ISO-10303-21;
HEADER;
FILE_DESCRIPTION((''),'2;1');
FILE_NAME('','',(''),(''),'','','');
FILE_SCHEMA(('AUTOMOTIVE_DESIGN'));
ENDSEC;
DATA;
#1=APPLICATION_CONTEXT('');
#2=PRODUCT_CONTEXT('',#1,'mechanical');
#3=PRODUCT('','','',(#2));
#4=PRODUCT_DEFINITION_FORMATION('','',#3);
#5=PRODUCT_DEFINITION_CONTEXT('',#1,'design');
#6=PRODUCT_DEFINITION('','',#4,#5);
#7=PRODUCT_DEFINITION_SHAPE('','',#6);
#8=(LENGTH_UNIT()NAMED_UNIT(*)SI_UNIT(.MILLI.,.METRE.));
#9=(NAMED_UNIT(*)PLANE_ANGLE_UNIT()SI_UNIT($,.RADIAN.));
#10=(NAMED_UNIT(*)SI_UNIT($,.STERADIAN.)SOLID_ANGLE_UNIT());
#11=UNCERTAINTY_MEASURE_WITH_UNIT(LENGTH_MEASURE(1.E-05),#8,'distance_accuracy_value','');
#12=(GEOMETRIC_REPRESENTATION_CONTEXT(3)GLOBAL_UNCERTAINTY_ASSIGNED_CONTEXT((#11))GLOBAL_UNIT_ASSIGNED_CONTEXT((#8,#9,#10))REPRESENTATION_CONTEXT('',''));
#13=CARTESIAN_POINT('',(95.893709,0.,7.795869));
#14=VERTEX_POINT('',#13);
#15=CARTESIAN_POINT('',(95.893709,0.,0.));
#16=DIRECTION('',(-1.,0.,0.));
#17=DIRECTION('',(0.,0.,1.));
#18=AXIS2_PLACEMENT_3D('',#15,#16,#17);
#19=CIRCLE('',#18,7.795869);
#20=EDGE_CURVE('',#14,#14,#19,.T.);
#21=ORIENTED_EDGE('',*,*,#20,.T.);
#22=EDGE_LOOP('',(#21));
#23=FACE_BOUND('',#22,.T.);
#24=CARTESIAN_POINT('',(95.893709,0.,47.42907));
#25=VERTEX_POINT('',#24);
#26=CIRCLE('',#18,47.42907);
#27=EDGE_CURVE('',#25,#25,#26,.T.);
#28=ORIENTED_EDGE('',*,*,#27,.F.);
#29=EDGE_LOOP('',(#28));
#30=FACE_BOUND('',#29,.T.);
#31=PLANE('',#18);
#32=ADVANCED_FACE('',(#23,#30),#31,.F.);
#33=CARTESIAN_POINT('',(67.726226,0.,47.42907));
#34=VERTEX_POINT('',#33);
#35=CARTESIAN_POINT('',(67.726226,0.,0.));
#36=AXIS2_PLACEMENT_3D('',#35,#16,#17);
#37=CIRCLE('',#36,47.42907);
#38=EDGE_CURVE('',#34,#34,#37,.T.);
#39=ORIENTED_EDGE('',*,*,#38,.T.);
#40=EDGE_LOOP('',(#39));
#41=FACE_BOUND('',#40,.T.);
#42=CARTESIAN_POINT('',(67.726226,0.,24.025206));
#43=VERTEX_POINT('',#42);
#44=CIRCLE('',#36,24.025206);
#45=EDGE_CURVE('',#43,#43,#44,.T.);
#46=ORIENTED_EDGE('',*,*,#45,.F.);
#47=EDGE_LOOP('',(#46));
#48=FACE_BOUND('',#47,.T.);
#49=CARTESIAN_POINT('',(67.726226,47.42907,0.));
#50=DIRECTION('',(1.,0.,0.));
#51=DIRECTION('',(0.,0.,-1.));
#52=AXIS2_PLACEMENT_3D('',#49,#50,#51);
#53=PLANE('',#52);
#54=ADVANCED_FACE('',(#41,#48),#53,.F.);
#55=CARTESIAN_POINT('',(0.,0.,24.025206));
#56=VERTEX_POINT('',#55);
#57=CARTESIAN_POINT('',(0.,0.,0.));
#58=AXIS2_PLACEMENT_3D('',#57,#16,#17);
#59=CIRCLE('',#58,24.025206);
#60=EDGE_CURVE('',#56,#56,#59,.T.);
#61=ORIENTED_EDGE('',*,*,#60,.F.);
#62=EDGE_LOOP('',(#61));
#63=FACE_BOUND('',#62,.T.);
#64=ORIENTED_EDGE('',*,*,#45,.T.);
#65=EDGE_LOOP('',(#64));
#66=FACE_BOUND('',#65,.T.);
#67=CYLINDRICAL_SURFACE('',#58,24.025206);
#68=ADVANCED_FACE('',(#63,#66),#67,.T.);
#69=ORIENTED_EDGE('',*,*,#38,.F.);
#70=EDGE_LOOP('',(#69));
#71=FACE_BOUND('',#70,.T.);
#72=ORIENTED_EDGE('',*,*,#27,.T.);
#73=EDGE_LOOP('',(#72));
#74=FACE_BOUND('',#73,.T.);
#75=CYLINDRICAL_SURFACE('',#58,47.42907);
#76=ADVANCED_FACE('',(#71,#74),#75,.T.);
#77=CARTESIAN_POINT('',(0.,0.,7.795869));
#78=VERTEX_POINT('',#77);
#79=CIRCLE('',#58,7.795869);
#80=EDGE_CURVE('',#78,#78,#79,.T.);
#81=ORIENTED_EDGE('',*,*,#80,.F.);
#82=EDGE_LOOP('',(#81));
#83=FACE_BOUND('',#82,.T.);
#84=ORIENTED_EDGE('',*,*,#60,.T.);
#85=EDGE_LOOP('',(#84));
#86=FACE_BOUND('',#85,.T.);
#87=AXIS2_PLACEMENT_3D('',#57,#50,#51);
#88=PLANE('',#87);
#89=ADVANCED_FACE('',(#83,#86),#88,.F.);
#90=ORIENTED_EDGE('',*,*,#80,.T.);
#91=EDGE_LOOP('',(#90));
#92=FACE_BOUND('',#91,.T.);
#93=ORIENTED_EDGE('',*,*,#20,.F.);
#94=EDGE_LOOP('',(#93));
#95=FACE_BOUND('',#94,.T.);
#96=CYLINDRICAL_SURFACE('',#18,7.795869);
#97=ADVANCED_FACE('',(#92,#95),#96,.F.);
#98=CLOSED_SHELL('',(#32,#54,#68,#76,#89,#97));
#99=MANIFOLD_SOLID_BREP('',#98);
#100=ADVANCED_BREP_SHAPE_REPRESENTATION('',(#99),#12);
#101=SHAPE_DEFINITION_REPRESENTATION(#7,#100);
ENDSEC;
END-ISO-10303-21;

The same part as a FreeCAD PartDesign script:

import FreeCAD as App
import Part
import Sketcher
from FreeCAD import Vector
Q = App.Units.Quantity


def add_polygon(sketch, points):
    """Adds a closed chain of lines whose ends are joined by coincident constraints."""
    first, n = sketch.GeometryCount, len(points)
    for a, b in zip(points, points[1:] + points[:1]):
        sketch.addGeometry(Part.LineSegment(App.Vector(*a, 0), App.Vector(*b, 0)), False)
    for i in range(n):
        sketch.addConstraint(Sketcher.Constraint("Coincident", first + i, 2, first + (i + 1) % n, 1))

doc = App.newDocument("Part")
body = doc.addObject("PartDesign::Body", "Body")

sketch1 = body.newObject("Sketcher::SketchObject", "Sketch")
sketch1.AttachmentSupport = (doc.getObject("XY_Plane"), [""])
sketch1.MapMode = "FlatFace"
add_polygon(sketch1, [(68, 47), (68, 24), (0, 24), (0, 0), (96, 0), (96, 47)])
sketch1.addConstraint([
    Sketcher.Constraint("Vertical", 0),
    Sketcher.Constraint("Horizontal", 1),
    Sketcher.Constraint("Vertical", 2),
    Sketcher.Constraint("Horizontal", 3),
    Sketcher.Constraint("Vertical", 4),
    Sketcher.Constraint("Horizontal", 5),
    Sketcher.Constraint("Coincident", 2, 2, -1, 1),
    Sketcher.Constraint("DistanceX", 3, 1, 3, 2, Q("95.893709 mm")),
    Sketcher.Constraint("DistanceY", 4, 1, 4, 2, Q("47.42907 mm")),
    Sketcher.Constraint("DistanceX", 1, 2, 1, 1, Q("67.726226 mm")),
    Sketcher.Constraint("DistanceY", 0, 2, 0, 1, Q("23.403864 mm")),
])
revolution = body.newObject("PartDesign::Revolution", "Revolution")
revolution.Profile = sketch1
revolution.ReferenceAxis = (sketch1, ["H_Axis"])
revolution.Angle = 360

sketch2 = body.newObject("Sketcher::SketchObject", "Sketch001")
sketch2.AttachmentSupport = (doc.getObject("YZ_Plane"), [""])
sketch2.MapMode = "FlatFace"
sketch2.addGeometry(Part.Circle(Vector(0, 0, 0), Vector(0, 0, 1), 8), False)
sketch2.addConstraint([
    Sketcher.Constraint("Coincident", 0, 3, -1, 1),
    Sketcher.Constraint("Diameter", 0, Q("15.591737 mm")),
])
pocket1 = body.newObject("PartDesign::Pocket", "Pocket")
pocket1.Profile = sketch2
pocket1.Type = "ThroughAll"
pocket1.Reversed = True

doc.recompute()
